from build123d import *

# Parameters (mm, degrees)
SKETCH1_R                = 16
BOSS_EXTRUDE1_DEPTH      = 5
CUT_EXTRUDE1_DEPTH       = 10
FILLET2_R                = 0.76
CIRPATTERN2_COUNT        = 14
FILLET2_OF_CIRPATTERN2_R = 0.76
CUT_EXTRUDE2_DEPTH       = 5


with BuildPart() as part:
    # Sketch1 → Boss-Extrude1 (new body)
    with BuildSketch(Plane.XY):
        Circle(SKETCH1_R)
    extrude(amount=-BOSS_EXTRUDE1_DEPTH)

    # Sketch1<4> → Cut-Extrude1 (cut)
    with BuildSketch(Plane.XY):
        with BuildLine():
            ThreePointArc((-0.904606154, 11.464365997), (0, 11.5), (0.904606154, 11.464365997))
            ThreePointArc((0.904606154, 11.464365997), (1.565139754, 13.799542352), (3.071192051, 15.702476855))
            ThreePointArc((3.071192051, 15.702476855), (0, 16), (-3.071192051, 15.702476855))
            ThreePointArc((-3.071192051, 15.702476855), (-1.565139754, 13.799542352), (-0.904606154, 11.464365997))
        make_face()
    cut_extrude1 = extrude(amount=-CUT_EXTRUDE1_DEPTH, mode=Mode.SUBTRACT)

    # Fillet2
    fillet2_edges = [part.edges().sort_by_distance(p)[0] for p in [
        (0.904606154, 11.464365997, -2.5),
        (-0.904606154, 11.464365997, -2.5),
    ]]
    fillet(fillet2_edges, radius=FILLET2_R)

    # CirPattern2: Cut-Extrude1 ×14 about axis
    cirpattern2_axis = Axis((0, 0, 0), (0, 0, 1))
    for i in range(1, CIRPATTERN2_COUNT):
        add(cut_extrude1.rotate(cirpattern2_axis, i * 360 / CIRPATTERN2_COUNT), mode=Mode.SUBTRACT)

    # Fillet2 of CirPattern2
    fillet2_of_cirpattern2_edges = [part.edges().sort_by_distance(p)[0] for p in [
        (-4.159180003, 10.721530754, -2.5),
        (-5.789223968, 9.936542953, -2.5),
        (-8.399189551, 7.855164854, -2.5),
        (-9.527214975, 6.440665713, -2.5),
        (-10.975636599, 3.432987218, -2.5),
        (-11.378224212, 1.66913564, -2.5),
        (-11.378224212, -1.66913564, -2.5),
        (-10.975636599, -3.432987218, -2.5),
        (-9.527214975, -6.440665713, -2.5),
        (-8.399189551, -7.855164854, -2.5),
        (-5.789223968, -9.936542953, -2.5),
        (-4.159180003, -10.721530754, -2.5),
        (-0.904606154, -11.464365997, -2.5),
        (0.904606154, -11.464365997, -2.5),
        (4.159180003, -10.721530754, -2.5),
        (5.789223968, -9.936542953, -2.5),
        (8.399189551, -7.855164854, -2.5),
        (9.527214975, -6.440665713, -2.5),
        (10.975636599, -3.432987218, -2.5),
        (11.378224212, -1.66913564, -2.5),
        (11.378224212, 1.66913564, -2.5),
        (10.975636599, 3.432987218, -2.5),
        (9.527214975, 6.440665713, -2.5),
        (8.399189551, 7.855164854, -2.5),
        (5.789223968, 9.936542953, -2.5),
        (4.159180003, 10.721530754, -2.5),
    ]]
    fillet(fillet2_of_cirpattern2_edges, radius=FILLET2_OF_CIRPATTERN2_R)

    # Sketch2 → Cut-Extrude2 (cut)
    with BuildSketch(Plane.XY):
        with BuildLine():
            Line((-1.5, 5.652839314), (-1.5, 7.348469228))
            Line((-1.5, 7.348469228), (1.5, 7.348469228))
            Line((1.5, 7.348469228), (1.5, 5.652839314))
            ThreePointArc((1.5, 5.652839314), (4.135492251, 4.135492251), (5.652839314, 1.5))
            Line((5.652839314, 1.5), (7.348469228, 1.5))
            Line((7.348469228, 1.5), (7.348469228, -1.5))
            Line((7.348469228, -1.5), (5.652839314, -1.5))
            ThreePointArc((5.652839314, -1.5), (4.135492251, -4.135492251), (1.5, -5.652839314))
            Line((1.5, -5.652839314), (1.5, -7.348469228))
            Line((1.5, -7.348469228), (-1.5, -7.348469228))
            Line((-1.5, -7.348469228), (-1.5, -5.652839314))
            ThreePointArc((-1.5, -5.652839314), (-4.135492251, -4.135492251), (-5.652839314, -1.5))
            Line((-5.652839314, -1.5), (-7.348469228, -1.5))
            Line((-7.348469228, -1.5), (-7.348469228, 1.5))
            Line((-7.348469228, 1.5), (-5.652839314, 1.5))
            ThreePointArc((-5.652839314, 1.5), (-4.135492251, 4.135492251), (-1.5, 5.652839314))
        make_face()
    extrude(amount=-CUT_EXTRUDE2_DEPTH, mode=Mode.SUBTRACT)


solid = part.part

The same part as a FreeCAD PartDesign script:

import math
import FreeCAD as App
import Part
import Sketcher

V = App.Vector
Q = App.Units.Quantity


def edges_at(feature, points):
    """Names of the edges that pass closest to the given points."""
    edges = feature.Shape.Edges
    near = lambda p: min(range(len(edges)), key=lambda i: edges[i].distToShape(Part.Vertex(*p))[0])
    return sorted({f"Edge{near(p) + 1}" for p in points})

doc = App.newDocument("Part")
params = doc.addObject("Spreadsheet::Sheet", "Params")
for row, (alias, value) in enumerate([
    ("sketch1_diameter", "32 mm"),
    ("pad1_length", "5 mm"),
    ("sketch2_radius", "16 mm"),
    ("sketch2_radius2", "11.5 mm"),
    ("pocket1_length", "10 mm"),
    ("fillet_radius", "0.76 mm"),
    ("fillet2_radius", "0.76 mm"),
    ("sketch3_width", "3 mm"),
    ("pocket2_length", "5 mm"),
], start=1):
    params.set(f"A{row}", alias)
    params.set(f"B{row}", "=" + value)
    params.setAlias(f"B{row}", alias)

body = doc.addObject("PartDesign::Body", "Body")

sketch1 = body.newObject("Sketcher::SketchObject", "Sketch")
sketch1.AttachmentSupport = (doc.getObject("XY_Plane"), [""])
sketch1.MapMode = "FlatFace"
sketch1.addGeometry(Part.Circle(V(0, 0, 0), V(0, 0, 1), 16), False)
sketch1.addConstraint([
    Sketcher.Constraint("Coincident", 0, 3, -1, 1),
    Sketcher.Constraint("Diameter", 0, Q("32 mm")),
])
sketch1.setExpression("Constraints[1]", "Params.sketch1_diameter")
pad1 = body.newObject("PartDesign::Pad", "Pad")
pad1.Profile = sketch1
pad1.setExpression("Length", "Params.pad1_length")
pad1.Reversed = True

sketch2 = body.newObject("Sketcher::SketchObject", "Sketch001")
sketch2.AttachmentSupport = (doc.getObject("XY_Plane"), [""])
sketch2.MapMode = "FlatFace"
sketch2.addGeometry([
    Part.ArcOfCircle(Part.Circle(V(0, 0, 0), V(0, 0, 1), 11.5), math.radians(85.488373), math.radians(94.511627)),
    Part.ArcOfCircle(Part.Circle(V(7.087337, 10.976512, 0), V(0, 0, 1), 6.201949), math.radians(130.358027), math.radians(175.488373)),
    Part.ArcOfCircle(Part.Circle(V(0, 0, 0), V(0, 0, 1), 16), math.radians(78.933423), math.radians(101.066577)),
    Part.ArcOfCircle(Part.Circle(V(-7.087337, 10.976512, 0), V(0, 0, 1), 6.201949), math.radians(4.511627), math.radians(49.641973)),
], False)
sketch2.addConstraint([
    Sketcher.Constraint("Coincident", 0, 1, 1, 2),
    Sketcher.Constraint("Coincident", 1, 1, 2, 1),
    Sketcher.Constraint("Coincident", 2, 2, 3, 2),
    Sketcher.Constraint("Coincident", 3, 1, 0, 2),
    Sketcher.Constraint("Coincident", 0, 3, -1, 1),
    Sketcher.Constraint("Coincident", 2, 3, -1, 1),
    Sketcher.Constraint("Equal", 1, 3),
    Sketcher.Constraint("Symmetric", 1, 3, 3, 3, -2),
    Sketcher.Constraint("Radius", 2, Q("16 mm")),
    Sketcher.Constraint("Radius", 0, Q("11.5 mm")),
    Sketcher.Constraint("Radius", 1, Q("6.201949 mm")),
    Sketcher.Constraint("DistanceX", 2, 2, 0, 1, Q("3.975798 mm")),
    Sketcher.Constraint("DistanceY", 2, 3, 1, 3, Q("10.976512 mm")),
])
sketch2.setExpression("Constraints[8]", "Params.sketch2_radius")
sketch2.setExpression("Constraints[9]", "Params.sketch2_radius2")
pocket1 = body.newObject("PartDesign::Pocket", "Pocket")
pocket1.Profile = sketch2
pocket1.setExpression("Length", "Params.pocket1_length")
doc.recompute()

fillet = body.newObject("PartDesign::Fillet", "Fillet")
fillet.Base = (pocket1, edges_at(pocket1, [(0.905, 11.464, -2.5), (-0.905, 11.464, -2.5)]))
fillet.setExpression("Radius", "Params.fillet_radius")
doc.recompute()

polarpattern = body.newObject("PartDesign::PolarPattern", "PolarPattern")
polarpattern.Originals = [pocket1]
polarpattern.Axis = (doc.getObject("Z_Axis"), [""])
polarpattern.Angle = 360
polarpattern.Occurrences = 14
body.Tip = polarpattern
doc.recompute()

fillet2 = body.newObject("PartDesign::Fillet", "Fillet001")
fillet2.Base = (polarpattern, edges_at(polarpattern, [
    (-4.159, 10.722, -2.5),
    (-5.789, 9.937, -2.5),
    (-8.399, 7.855, -2.5),
    (-9.527, 6.441, -2.5),
    (-10.976, 3.433, -2.5),
    (-11.378, 1.669, -2.5),
    (-11.378, -1.669, -2.5),
    (-10.976, -3.433, -2.5),
    (-9.527, -6.441, -2.5),
    (-8.399, -7.855, -2.5),
    (-5.789, -9.937, -2.5),
    (-4.159, -10.722, -2.5),
    (-0.905, -11.464, -2.5),
    (0.905, -11.464, -2.5),
    (4.159, -10.722, -2.5),
    (5.789, -9.937, -2.5),
    (8.399, -7.855, -2.5),
    (9.527, -6.441, -2.5),
    (10.976, -3.433, -2.5),
    (11.378, -1.669, -2.5),
    (11.378, 1.669, -2.5),
    (10.976, 3.433, -2.5),
    (9.527, 6.441, -2.5),
    (8.399, 7.855, -2.5),
    (5.789, 9.937, -2.5),
    (4.159, 10.722, -2.5),
]))
fillet2.setExpression("Radius", "Params.fillet2_radius")

sketch3 = body.newObject("Sketcher::SketchObject", "Sketch002")
sketch3.AttachmentSupport = (doc.getObject("XY_Plane"), [""])
sketch3.MapMode = "FlatFace"
sketch3.addGeometry([
    Part.LineSegment(V(-1.5, 7.348469, 0), V(-1.5, 5.652839, 0)),
    Part.ArcOfCircle(Part.Circle(V(0, 0, 0), V(0, 0, 1), 5.848469), math.radians(104.861144), math.radians(165.138856)),
    Part.LineSegment(V(-5.652839, 1.5, 0), V(-7.348469, 1.5, 0)),
    Part.LineSegment(V(-7.348469, 1.5, 0), V(-7.348469, -1.5, 0)),
    Part.LineSegment(V(-7.348469, -1.5, 0), V(-5.652839, -1.5, 0)),
    Part.ArcOfCircle(Part.Circle(V(0, 0, 0), V(0, 0, 1), 5.848469), math.radians(-165.138856), math.radians(-104.861144)),
    Part.LineSegment(V(-1.5, -5.652839, 0), V(-1.5, -7.348469, 0)),
    Part.LineSegment(V(-1.5, -7.348469, 0), V(1.5, -7.348469, 0)),
    Part.LineSegment(V(1.5, -7.348469, 0), V(1.5, -5.652839, 0)),
    Part.ArcOfCircle(Part.Circle(V(0, 0, 0), V(0, 0, 1), 5.848469), math.radians(-75.138856), math.radians(-14.861144)),
    Part.LineSegment(V(5.652839, -1.5, 0), V(7.348469, -1.5, 0)),
    Part.LineSegment(V(7.348469, -1.5, 0), V(7.348469, 1.5, 0)),
    Part.LineSegment(V(7.348469, 1.5, 0), V(5.652839, 1.5, 0)),
    Part.ArcOfCircle(Part.Circle(V(0, 0, 0), V(0, 0, 1), 5.848469), math.radians(14.861144), math.radians(75.138856)),
    Part.LineSegment(V(1.5, 5.652839, 0), V(1.5, 7.348469, 0)),
    Part.LineSegment(V(1.5, 7.348469, 0), V(-1.5, 7.348469, 0)),
], False)
sketch3.addConstraint([
    Sketcher.Constraint("Coincident", 0, 2, 1, 1),
    Sketcher.Constraint("Coincident", 1, 2, 2, 1),
    Sketcher.Constraint("Coincident", 2, 2, 3, 1),
    Sketcher.Constraint("Coincident", 3, 2, 4, 1),
    Sketcher.Constraint("Coincident", 4, 2, 5, 1),
    Sketcher.Constraint("Coincident", 5, 2, 6, 1),
    Sketcher.Constraint("Coincident", 6, 2, 7, 1),
    Sketcher.Constraint("Coincident", 7, 2, 8, 1),
    Sketcher.Constraint("Coincident", 8, 2, 9, 1),
    Sketcher.Constraint("Coincident", 9, 2, 10, 1),
    Sketcher.Constraint("Coincident", 10, 2, 11, 1),
    Sketcher.Constraint("Coincident", 11, 2, 12, 1),
    Sketcher.Constraint("Coincident", 12, 2, 13, 1),
    Sketcher.Constraint("Coincident", 13, 2, 14, 1),
    Sketcher.Constraint("Coincident", 14, 2, 15, 1),
    Sketcher.Constraint("Coincident", 15, 2, 0, 1),
    Sketcher.Constraint("Vertical", 0),
    Sketcher.Constraint("Horizontal", 2),
    Sketcher.Constraint("Vertical", 3),
    Sketcher.Constraint("Horizontal", 4),
    Sketcher.Constraint("Vertical", 6),
    Sketcher.Constraint("Horizontal", 7),
    Sketcher.Constraint("Vertical", 8),
    Sketcher.Constraint("Horizontal", 10),
    Sketcher.Constraint("Vertical", 11),
    Sketcher.Constraint("Horizontal", 12),
    Sketcher.Constraint("Vertical", 14),
    Sketcher.Constraint("Horizontal", 15),
    Sketcher.Constraint("Coincident", 1, 3, -1, 1),
    Sketcher.Constraint("Coincident", 5, 3, -1, 1),
    Sketcher.Constraint("Coincident", 9, 3, -1, 1),
    Sketcher.Constraint("Coincident", 13, 3, -1, 1),
    Sketcher.Constraint("Equal", 1, 5),
    Sketcher.Constraint("Equal", 5, 9),
    Sketcher.Constraint("Equal", 9, 13),
    Sketcher.Constraint("Symmetric", 2, 2, 10, 2, -1, 1),
    Sketcher.Constraint("Symmetric", 6, 2, 14, 2, -1, 1),
    Sketcher.Constraint("Horizontal", 5, 2, 8, 2),
    Sketcher.Constraint("Horizontal", 4, 2, 9, 2),
    Sketcher.Constraint("Horizontal", 2, 2, 11, 2),
    Sketcher.Constraint("Horizontal", 0, 2, 13, 2),
    Sketcher.Constraint("Equal", 12, 0),
    Sketcher.Constraint("Equal", 15, 3),
    Sketcher.Constraint("DistanceX", 7, 1, 7, 2, Q("3 mm")),
    Sketcher.Constraint("Radius", 1, Q("5.848469 mm")),
    Sketcher.Constraint("DistanceX", 2, 2, 2, 1, Q("1.69563 mm")),
])
sketch3.setExpression("Constraints[43]", "Params.sketch3_width")
pocket2 = body.newObject("PartDesign::Pocket", "Pocket001")
pocket2.Profile = sketch3
pocket2.setExpression("Length", "Params.pocket2_length")

doc.recompute()
